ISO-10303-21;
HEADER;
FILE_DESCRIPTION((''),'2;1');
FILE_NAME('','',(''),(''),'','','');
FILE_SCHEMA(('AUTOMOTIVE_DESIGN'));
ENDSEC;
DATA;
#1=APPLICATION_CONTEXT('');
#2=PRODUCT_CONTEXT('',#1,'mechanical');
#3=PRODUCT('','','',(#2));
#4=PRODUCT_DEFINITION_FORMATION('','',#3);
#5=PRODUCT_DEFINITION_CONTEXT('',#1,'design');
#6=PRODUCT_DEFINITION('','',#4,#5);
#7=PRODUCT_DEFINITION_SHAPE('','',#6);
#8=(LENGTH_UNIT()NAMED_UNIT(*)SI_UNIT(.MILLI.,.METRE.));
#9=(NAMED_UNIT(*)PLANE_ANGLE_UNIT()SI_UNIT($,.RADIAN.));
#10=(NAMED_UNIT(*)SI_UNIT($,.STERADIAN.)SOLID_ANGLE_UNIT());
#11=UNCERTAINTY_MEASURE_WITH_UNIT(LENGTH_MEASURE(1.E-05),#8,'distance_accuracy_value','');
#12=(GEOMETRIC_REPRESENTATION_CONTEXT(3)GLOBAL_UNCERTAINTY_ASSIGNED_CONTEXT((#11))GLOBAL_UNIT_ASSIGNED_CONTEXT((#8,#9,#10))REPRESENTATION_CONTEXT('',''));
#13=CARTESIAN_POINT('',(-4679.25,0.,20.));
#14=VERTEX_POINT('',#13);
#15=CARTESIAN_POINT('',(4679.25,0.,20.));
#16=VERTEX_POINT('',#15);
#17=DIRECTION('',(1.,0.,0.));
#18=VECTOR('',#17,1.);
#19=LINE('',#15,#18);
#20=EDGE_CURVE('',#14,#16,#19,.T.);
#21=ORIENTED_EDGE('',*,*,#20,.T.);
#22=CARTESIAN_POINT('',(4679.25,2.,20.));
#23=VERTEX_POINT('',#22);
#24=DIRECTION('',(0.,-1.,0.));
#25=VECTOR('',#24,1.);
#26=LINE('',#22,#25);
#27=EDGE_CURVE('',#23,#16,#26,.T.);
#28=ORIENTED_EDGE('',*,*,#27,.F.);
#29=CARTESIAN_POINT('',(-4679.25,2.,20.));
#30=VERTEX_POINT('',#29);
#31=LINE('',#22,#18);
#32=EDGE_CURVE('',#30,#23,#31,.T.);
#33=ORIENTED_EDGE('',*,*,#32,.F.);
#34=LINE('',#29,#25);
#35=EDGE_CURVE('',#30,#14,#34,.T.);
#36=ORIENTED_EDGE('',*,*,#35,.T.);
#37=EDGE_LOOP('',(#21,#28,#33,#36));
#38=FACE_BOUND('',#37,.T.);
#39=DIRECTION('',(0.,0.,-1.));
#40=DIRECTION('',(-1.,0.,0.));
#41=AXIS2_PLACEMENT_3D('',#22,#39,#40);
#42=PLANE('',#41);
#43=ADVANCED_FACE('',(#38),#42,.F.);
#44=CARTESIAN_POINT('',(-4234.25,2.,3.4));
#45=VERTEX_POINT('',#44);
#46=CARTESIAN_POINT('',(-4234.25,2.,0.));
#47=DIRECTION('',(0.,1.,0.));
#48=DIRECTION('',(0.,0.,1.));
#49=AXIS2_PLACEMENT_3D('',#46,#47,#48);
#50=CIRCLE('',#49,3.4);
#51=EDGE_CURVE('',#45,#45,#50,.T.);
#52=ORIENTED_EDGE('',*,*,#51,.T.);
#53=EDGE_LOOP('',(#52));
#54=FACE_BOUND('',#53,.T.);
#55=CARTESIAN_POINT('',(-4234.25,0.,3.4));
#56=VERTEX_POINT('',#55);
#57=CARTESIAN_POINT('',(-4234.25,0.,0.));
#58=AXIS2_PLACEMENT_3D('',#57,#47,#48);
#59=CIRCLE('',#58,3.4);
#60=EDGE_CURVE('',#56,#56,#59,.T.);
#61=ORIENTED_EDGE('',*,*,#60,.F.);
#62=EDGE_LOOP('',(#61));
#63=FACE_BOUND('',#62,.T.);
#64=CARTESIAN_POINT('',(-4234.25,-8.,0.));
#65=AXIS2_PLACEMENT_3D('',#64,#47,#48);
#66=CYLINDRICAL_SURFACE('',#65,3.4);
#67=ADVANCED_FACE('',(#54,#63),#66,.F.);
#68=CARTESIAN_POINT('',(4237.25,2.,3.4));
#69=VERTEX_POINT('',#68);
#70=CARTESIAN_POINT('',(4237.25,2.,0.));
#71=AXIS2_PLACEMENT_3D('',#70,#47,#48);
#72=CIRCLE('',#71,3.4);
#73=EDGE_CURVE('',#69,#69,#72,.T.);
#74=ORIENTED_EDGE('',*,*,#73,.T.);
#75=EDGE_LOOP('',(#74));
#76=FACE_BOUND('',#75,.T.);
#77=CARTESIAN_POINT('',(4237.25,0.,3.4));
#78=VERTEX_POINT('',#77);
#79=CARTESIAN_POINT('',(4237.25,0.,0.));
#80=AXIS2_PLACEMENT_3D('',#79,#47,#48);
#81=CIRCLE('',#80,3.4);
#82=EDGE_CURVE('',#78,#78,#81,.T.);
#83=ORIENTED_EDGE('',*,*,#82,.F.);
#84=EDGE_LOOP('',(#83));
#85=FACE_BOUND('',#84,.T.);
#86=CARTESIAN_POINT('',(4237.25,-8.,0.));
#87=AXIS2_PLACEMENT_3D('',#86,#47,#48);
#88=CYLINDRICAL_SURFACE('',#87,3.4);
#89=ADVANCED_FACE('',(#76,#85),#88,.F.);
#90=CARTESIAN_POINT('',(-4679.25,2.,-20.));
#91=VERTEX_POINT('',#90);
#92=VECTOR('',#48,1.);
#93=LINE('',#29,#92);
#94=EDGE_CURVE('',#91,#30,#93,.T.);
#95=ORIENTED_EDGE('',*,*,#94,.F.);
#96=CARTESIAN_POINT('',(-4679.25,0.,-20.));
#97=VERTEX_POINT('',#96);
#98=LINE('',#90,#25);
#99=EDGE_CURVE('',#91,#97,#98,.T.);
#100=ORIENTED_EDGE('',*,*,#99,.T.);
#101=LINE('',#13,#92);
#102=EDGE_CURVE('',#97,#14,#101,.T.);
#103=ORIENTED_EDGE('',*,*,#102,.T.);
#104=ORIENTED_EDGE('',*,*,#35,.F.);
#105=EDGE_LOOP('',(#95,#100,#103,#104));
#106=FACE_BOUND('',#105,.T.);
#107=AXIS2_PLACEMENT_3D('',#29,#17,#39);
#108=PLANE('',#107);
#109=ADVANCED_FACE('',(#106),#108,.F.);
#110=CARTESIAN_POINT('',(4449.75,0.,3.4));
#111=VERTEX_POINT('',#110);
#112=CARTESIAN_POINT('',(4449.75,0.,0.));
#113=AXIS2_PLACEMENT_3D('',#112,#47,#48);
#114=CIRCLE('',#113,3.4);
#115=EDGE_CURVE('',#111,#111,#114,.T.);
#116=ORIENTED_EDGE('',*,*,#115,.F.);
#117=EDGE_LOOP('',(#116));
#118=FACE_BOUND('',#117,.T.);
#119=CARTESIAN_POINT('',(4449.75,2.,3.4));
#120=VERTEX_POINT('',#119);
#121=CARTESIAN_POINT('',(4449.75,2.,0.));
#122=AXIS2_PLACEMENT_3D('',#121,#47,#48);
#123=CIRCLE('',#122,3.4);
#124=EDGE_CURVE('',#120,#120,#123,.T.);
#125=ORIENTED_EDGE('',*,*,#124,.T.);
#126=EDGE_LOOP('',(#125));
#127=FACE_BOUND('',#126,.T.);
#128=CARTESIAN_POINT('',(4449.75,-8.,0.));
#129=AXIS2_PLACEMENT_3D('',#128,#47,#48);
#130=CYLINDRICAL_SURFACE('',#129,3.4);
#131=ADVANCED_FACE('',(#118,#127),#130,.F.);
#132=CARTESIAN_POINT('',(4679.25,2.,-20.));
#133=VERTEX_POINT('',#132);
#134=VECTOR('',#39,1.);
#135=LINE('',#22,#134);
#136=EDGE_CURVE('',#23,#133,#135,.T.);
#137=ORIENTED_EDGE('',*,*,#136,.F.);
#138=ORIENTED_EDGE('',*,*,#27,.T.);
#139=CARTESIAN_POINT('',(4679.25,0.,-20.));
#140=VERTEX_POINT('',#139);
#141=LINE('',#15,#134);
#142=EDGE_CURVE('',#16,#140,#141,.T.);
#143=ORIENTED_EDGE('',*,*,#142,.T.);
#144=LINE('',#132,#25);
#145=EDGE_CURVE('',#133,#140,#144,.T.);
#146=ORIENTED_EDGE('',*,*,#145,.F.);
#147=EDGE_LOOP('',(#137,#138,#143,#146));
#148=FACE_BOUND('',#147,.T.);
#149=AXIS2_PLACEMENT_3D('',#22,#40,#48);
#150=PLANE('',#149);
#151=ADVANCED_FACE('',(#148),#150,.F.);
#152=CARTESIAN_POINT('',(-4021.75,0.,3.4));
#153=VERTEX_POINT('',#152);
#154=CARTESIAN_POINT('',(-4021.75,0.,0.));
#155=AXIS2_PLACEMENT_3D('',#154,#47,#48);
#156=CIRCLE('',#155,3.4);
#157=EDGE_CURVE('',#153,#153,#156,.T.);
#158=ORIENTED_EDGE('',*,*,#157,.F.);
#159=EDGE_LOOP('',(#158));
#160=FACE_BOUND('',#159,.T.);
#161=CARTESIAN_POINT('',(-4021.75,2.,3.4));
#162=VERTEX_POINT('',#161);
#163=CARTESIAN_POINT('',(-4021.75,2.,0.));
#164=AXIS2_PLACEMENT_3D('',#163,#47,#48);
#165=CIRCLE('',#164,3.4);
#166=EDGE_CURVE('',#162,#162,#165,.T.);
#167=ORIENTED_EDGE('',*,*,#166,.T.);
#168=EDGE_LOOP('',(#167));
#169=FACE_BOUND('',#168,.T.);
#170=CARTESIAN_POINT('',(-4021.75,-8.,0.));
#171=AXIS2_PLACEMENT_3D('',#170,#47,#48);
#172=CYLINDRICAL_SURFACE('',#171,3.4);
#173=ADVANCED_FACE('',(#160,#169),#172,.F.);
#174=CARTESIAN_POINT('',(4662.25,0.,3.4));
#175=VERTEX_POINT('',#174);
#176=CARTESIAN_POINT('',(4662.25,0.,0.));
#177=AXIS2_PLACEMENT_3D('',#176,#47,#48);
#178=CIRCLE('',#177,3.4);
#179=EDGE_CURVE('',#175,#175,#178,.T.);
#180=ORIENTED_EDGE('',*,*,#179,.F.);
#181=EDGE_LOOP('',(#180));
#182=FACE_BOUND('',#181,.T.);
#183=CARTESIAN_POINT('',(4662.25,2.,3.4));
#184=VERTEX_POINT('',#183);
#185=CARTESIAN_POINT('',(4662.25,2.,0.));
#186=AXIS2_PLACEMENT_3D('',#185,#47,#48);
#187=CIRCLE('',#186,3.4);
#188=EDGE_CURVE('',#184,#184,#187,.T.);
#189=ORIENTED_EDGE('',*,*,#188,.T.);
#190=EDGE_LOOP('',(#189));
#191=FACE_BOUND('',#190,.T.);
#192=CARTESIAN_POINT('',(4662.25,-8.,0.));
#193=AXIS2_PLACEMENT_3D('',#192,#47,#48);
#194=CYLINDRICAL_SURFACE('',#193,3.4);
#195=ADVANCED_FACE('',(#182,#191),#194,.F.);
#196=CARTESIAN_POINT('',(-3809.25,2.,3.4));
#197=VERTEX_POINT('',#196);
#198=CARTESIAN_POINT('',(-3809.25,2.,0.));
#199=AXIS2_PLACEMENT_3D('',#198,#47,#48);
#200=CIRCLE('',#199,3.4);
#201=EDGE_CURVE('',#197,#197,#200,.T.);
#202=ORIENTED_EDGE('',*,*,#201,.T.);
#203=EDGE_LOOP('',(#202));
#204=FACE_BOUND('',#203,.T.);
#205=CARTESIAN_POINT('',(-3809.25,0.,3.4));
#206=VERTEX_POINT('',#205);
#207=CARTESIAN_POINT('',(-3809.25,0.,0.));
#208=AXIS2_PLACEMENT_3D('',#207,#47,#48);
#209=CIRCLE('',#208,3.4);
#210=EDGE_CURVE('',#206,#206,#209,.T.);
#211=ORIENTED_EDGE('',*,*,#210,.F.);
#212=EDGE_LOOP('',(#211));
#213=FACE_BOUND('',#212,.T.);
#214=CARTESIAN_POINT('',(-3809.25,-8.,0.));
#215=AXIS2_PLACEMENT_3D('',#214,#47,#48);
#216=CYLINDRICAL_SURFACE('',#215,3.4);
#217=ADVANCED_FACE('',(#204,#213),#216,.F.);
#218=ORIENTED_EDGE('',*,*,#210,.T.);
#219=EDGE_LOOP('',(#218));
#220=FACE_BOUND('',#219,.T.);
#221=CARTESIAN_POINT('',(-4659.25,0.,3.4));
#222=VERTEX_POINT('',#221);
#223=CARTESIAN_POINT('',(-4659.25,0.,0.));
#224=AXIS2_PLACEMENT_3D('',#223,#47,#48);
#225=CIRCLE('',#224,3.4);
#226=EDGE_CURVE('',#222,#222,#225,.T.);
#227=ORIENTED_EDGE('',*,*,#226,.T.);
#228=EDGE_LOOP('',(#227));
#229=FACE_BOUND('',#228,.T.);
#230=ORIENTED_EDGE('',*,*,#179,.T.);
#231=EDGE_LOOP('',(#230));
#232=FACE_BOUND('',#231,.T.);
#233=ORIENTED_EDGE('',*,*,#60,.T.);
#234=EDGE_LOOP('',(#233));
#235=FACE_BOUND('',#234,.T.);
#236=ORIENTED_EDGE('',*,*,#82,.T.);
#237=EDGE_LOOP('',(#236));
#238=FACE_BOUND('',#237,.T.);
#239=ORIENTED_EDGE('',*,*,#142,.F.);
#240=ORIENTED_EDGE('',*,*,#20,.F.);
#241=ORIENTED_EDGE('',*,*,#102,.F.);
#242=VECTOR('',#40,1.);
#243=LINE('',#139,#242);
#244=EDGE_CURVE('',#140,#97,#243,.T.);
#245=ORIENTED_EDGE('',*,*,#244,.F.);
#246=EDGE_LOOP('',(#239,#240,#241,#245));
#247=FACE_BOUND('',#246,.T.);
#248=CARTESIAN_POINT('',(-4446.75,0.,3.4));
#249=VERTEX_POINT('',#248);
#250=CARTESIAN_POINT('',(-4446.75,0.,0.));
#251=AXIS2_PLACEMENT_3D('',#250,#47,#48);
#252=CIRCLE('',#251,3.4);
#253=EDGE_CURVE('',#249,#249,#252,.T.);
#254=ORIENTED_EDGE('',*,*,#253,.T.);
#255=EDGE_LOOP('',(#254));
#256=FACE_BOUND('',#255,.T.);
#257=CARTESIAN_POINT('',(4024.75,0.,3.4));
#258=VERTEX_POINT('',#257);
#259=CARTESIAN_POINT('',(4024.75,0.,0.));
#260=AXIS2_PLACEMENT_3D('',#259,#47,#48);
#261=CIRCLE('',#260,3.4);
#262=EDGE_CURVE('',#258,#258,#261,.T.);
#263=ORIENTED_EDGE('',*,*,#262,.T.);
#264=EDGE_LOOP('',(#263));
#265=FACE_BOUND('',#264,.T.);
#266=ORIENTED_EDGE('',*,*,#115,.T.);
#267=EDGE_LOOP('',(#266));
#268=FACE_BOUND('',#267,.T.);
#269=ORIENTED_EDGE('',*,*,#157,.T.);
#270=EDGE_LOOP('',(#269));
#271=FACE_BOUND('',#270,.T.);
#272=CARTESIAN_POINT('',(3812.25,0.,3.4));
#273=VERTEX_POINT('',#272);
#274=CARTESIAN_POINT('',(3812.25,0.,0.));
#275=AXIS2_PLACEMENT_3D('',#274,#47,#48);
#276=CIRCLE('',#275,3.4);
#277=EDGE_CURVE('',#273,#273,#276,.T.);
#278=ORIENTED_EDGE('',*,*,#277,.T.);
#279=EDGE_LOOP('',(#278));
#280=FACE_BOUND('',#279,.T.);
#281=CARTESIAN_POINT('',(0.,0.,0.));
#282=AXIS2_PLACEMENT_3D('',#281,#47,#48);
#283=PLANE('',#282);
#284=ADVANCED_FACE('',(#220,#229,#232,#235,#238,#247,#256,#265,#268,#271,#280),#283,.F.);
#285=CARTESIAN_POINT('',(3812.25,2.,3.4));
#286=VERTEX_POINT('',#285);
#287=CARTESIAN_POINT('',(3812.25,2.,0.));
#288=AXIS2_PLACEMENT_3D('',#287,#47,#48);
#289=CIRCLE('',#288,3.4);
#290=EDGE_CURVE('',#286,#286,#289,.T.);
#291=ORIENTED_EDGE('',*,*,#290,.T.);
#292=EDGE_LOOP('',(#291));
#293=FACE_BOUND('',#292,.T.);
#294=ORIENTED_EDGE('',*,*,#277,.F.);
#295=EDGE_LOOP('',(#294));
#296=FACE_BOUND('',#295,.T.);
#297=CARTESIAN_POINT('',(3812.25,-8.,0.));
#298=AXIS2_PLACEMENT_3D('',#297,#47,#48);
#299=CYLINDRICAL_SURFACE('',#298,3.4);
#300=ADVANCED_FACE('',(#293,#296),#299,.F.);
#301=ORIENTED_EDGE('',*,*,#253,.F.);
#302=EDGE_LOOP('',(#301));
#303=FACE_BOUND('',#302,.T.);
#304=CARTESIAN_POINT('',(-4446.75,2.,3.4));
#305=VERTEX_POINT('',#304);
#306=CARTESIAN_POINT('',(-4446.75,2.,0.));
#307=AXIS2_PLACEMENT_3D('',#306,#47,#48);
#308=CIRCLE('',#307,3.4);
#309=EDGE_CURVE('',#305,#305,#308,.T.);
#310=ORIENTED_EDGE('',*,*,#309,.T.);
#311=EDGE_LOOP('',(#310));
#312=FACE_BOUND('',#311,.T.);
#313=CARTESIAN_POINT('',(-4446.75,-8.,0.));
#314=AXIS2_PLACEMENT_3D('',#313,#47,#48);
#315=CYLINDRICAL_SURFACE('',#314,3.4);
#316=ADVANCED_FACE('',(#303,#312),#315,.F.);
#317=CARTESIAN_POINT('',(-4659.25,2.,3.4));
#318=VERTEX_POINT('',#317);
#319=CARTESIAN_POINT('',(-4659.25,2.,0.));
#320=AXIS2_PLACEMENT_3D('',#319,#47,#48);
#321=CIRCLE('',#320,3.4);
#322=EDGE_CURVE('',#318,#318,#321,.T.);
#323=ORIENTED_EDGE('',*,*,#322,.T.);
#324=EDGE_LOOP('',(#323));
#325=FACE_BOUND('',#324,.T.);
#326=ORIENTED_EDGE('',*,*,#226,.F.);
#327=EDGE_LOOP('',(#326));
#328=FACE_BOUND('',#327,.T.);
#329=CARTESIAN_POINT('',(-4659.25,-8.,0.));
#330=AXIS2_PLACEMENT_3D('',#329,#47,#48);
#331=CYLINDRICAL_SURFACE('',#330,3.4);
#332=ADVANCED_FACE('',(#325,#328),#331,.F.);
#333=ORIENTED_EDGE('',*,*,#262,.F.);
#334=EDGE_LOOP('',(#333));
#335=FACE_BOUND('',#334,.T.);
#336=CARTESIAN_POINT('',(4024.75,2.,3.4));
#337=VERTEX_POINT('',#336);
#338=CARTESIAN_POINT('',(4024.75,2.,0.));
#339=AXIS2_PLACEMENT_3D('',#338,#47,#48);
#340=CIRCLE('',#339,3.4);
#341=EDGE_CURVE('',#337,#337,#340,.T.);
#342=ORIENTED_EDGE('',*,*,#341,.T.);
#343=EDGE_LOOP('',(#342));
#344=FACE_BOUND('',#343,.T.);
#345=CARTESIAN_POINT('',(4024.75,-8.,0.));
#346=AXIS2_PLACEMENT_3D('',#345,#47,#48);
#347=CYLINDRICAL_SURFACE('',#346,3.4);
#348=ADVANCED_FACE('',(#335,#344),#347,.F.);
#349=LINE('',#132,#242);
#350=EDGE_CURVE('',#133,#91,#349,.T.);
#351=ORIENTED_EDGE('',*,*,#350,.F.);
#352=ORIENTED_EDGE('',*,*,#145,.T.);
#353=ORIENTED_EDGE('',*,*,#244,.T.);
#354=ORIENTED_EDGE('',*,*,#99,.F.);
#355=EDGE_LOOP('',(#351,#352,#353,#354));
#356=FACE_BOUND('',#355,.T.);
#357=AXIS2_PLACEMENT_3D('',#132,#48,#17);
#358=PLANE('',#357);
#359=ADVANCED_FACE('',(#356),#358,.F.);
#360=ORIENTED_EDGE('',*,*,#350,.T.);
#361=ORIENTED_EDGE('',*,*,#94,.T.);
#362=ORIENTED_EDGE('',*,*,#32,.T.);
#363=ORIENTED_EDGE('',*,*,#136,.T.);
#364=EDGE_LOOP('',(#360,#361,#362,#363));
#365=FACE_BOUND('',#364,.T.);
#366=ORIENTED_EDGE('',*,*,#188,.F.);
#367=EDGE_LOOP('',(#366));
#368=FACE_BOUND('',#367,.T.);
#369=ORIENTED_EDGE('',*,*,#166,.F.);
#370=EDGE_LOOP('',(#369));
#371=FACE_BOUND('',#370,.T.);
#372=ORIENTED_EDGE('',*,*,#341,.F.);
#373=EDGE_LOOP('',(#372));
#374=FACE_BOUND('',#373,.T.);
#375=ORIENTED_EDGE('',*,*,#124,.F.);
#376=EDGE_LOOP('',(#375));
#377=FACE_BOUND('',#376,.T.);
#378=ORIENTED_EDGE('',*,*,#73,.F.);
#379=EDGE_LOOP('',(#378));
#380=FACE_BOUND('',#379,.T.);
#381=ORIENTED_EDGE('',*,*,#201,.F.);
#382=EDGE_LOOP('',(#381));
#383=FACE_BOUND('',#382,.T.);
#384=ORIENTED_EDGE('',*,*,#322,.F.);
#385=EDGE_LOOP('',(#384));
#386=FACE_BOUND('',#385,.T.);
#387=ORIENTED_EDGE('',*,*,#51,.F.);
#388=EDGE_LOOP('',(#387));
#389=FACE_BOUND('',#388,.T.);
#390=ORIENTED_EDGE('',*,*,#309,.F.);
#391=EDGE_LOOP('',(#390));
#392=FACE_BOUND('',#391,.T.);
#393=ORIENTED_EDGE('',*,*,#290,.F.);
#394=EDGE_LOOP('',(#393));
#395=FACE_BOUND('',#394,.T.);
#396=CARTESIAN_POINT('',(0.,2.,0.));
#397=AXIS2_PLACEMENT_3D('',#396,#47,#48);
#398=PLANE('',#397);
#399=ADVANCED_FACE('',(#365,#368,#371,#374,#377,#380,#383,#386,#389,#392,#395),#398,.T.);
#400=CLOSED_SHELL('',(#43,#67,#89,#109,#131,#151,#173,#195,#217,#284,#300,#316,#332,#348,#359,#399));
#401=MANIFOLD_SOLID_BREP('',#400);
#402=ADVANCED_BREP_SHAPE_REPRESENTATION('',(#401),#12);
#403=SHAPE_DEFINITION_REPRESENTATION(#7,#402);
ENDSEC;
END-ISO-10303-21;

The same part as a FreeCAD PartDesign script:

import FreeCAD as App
import Part
import Sketcher
Q = App.Units.Quantity

doc = App.newDocument("Part")
body = doc.addObject("PartDesign::Body", "Body")

# Sketch on XZ plane
sketch1 = body.newObject("Sketcher::SketchObject", "Sketch")
sketch1.AttachmentSupport = (doc.getObject("XZ_Plane"), [""])
sketch1.MapMode = "FlatFace"
sketch1.addGeometry([
    Part.LineSegment(App.Vector(-4679, -20, 0), App.Vector(-4679, 20, 0)),
    Part.LineSegment(App.Vector(-4679, 20, 0), App.Vector(4679, 20, 0)),
    Part.LineSegment(App.Vector(4679, 20, 0), App.Vector(4679, -20, 0)),
    Part.LineSegment(App.Vector(4679, -20, 0), App.Vector(-4679, -20, 0)),
], False)
sketch1.addConstraint([
    Sketcher.Constraint("Coincident", 0, 2, 1, 1),
    Sketcher.Constraint("Coincident", 1, 2, 2, 1),
    Sketcher.Constraint("Coincident", 2, 2, 3, 1),
    Sketcher.Constraint("Coincident", 3, 2, 0, 1),
    Sketcher.Constraint("Vertical", 0),
    Sketcher.Constraint("Horizontal", 1),
    Sketcher.Constraint("Vertical", 2),
    Sketcher.Constraint("Horizontal", 3),
    Sketcher.Constraint("Symmetric", 0, 2, 2, 2, -1, 1),
    Sketcher.Constraint("DistanceY", 0, 1, 0, 2, Q("40 mm")),
    Sketcher.Constraint("DistanceX", 1, 1, 1, 2, Q("9358.5 mm")),
])
pad1 = body.newObject("PartDesign::Pad", "Pad")
pad1.Profile = sketch1
pad1.Length = 2
pad1.Reversed = True

# Sketch on XZ plane
sketch2 = body.newObject("Sketcher::SketchObject", "Sketch001")
sketch2.AttachmentSupport = (doc.getObject("XZ_Plane"), [""])
sketch2.MapMode = "FlatFace"
sketch2.AttachmentOffset = App.Placement(App.Vector(0, 0, -2), App.Rotation())
sketch2.addGeometry([
    Part.Circle(App.Vector(-4659.2, 0, 0), App.Vector(0, 0, 1), 3.4),  # 0
    Part.Circle(App.Vector(-4446.8, 0, 0), App.Vector(0, 0, 1), 3.4),  # 1
    Part.Circle(App.Vector(-4234.2, 0, 0), App.Vector(0, 0, 1), 3.4),  # 2
    Part.Circle(App.Vector(-4021.8, 0, 0), App.Vector(0, 0, 1), 3.4),  # 3
    Part.Circle(App.Vector(-3809.2, 0, 0), App.Vector(0, 0, 1), 3.4),  # 4
    Part.Circle(App.Vector(4662.2, 0, 0), App.Vector(0, 0, 1), 3.4),  # 5
    Part.Circle(App.Vector(4449.8, 0, 0), App.Vector(0, 0, 1), 3.4),  # 6
    Part.Circle(App.Vector(4237.2, 0, 0), App.Vector(0, 0, 1), 3.4),  # 7
    Part.Circle(App.Vector(4024.8, 0, 0), App.Vector(0, 0, 1), 3.4),  # 8
    Part.Circle(App.Vector(3812.2, 0, 0), App.Vector(0, 0, 1), 3.4),  # 9
], False)
sketch2.addConstraint([
    Sketcher.Constraint("Equal", 0, 1),
    Sketcher.Constraint("Equal", 1, 2),
    Sketcher.Constraint("Equal", 2, 3),
    Sketcher.Constraint("Equal", 3, 4),
    Sketcher.Constraint("Equal", 4, 5),
    Sketcher.Constraint("Equal", 5, 6),
    Sketcher.Constraint("Equal", 6, 7),
    Sketcher.Constraint("Equal", 7, 8),
    Sketcher.Constraint("Equal", 8, 9),
    Sketcher.Constraint("PointOnObject", 0, 3, -1),
    Sketcher.Constraint("PointOnObject", 1, 3, -1),
    Sketcher.Constraint("PointOnObject", 2, 3, -1),
    Sketcher.Constraint("PointOnObject", 3, 3, -1),
    Sketcher.Constraint("PointOnObject", 4, 3, -1),
    Sketcher.Constraint("PointOnObject", 5, 3, -1),
    Sketcher.Constraint("PointOnObject", 6, 3, -1),
    Sketcher.Constraint("PointOnObject", 7, 3, -1),
    Sketcher.Constraint("PointOnObject", 8, 3, -1),
    Sketcher.Constraint("PointOnObject", 9, 3, -1),
    Sketcher.Constraint("Diameter", 0, Q("6.8 mm")),
    Sketcher.Constraint("DistanceX", 0, 3, 2, 3, Q("425 mm")),
    Sketcher.Constraint("DistanceX", 1, 3, 3, 3, Q("425 mm")),
    Sketcher.Constraint("DistanceX", 2, 3, 4, 3, Q("425 mm")),
    Sketcher.Constraint("DistanceX", 3, 3, 5, 3, Q("8684 mm")),
    Sketcher.Constraint("DistanceX", 4, 3, 6, 3, Q("8259 mm")),
    Sketcher.Constraint("DistanceX", 7, 3, 5, 3, Q("425 mm")),
    Sketcher.Constraint("DistanceX", 8, 3, 6, 3, Q("425 mm")),
    Sketcher.Constraint("DistanceX", 9, 3, 7, 3, Q("425 mm")),
    Sketcher.Constraint("DistanceX", 0, 3, 1, 3, Q("212.5 mm")),
    Sketcher.Constraint("DistanceX", 0, 3, -1, 1, Q("4659.25 mm")),
])
pocket1 = body.newObject("PartDesign::Pocket", "Pocket")
pocket1.Profile = sketch2
pocket1.Length = 10
pocket1.Reversed = True

doc.recompute()
